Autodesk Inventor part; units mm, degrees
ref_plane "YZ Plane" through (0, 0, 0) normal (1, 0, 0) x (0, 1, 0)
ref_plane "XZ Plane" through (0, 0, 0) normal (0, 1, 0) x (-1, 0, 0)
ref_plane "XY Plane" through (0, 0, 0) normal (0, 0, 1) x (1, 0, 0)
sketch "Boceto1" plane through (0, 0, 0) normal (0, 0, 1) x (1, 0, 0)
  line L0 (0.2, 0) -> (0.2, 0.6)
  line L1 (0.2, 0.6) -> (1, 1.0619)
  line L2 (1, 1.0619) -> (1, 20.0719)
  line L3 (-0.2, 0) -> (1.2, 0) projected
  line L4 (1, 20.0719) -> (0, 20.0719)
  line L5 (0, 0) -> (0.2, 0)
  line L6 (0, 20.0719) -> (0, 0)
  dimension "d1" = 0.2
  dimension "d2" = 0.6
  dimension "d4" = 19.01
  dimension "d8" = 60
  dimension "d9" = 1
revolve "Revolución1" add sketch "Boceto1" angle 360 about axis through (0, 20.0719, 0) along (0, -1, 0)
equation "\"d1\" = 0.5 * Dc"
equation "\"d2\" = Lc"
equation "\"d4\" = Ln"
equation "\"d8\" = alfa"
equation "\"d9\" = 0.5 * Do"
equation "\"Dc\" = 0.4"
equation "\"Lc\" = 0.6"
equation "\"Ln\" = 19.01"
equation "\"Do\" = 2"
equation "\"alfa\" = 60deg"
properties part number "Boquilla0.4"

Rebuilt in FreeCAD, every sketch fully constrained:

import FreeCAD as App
import Part
import Sketcher

V = App.Vector
Q = App.Units.Quantity

doc = App.newDocument("Part")
body = doc.addObject("PartDesign::Body", "Body")

# Sketch on XY plane
sketch1 = body.newObject("Sketcher::SketchObject", "Sketch")
sketch1.AttachmentSupport = (doc.getObject("XY_Plane"), [""])
sketch1.MapMode = "FlatFace"
sketch1.addGeometry([
    Part.LineSegment(V(0, 0, 0), V(0.2, 0, 0)),  # 0
    Part.LineSegment(V(0.2, 0, 0), V(0.2, 0.6, 0)),  # 1
    Part.LineSegment(V(0.2, 0.6, 0), V(1, 1.06, 0)),  # 2
    Part.LineSegment(V(1, 1.06, 0), V(1, 20.07, 0)),  # 3
    Part.LineSegment(V(1, 20.07, 0), V(0, 20.07, 0)),  # 4
    Part.LineSegment(V(0, 20.07, 0), V(0, 0, 0)),  # 5
], False)
sketch1.addConstraint([
    Sketcher.Constraint("Coincident", 0, 2, 1, 1),
    Sketcher.Constraint("Coincident", 1, 2, 2, 1),
    Sketcher.Constraint("Coincident", 2, 2, 3, 1),
    Sketcher.Constraint("Coincident", 3, 2, 4, 1),
    Sketcher.Constraint("Coincident", 4, 2, 5, 1),
    Sketcher.Constraint("Coincident", 5, 2, 0, 1),
    Sketcher.Constraint("Horizontal", 0),
    Sketcher.Constraint("Vertical", 1),
    Sketcher.Constraint("Vertical", 3),
    Sketcher.Constraint("Horizontal", 4),
    Sketcher.Constraint("Vertical", 5),
    Sketcher.Constraint("Coincident", 5, 2, -1, 1),
    Sketcher.Constraint("DistanceX", 4, 2, 4, 1, Q("1 mm")),
    Sketcher.Constraint("DistanceX", 0, 1, 0, 2, Q("0.2 mm")),
    Sketcher.Constraint("DistanceY", 1, 1, 1, 2, Q("0.6 mm")),
    Sketcher.Constraint("DistanceY", 3, 1, 3, 2, Q("19.01 mm")),
    Sketcher.Constraint("Angle", 2, Q("30.001 deg")),
])
revolution = body.newObject("PartDesign::Revolution", "Revolution")
revolution.Profile = sketch1
revolution.ReferenceAxis = (sketch1, ["V_Axis"])
revolution.Angle = 360

doc.recompute()
